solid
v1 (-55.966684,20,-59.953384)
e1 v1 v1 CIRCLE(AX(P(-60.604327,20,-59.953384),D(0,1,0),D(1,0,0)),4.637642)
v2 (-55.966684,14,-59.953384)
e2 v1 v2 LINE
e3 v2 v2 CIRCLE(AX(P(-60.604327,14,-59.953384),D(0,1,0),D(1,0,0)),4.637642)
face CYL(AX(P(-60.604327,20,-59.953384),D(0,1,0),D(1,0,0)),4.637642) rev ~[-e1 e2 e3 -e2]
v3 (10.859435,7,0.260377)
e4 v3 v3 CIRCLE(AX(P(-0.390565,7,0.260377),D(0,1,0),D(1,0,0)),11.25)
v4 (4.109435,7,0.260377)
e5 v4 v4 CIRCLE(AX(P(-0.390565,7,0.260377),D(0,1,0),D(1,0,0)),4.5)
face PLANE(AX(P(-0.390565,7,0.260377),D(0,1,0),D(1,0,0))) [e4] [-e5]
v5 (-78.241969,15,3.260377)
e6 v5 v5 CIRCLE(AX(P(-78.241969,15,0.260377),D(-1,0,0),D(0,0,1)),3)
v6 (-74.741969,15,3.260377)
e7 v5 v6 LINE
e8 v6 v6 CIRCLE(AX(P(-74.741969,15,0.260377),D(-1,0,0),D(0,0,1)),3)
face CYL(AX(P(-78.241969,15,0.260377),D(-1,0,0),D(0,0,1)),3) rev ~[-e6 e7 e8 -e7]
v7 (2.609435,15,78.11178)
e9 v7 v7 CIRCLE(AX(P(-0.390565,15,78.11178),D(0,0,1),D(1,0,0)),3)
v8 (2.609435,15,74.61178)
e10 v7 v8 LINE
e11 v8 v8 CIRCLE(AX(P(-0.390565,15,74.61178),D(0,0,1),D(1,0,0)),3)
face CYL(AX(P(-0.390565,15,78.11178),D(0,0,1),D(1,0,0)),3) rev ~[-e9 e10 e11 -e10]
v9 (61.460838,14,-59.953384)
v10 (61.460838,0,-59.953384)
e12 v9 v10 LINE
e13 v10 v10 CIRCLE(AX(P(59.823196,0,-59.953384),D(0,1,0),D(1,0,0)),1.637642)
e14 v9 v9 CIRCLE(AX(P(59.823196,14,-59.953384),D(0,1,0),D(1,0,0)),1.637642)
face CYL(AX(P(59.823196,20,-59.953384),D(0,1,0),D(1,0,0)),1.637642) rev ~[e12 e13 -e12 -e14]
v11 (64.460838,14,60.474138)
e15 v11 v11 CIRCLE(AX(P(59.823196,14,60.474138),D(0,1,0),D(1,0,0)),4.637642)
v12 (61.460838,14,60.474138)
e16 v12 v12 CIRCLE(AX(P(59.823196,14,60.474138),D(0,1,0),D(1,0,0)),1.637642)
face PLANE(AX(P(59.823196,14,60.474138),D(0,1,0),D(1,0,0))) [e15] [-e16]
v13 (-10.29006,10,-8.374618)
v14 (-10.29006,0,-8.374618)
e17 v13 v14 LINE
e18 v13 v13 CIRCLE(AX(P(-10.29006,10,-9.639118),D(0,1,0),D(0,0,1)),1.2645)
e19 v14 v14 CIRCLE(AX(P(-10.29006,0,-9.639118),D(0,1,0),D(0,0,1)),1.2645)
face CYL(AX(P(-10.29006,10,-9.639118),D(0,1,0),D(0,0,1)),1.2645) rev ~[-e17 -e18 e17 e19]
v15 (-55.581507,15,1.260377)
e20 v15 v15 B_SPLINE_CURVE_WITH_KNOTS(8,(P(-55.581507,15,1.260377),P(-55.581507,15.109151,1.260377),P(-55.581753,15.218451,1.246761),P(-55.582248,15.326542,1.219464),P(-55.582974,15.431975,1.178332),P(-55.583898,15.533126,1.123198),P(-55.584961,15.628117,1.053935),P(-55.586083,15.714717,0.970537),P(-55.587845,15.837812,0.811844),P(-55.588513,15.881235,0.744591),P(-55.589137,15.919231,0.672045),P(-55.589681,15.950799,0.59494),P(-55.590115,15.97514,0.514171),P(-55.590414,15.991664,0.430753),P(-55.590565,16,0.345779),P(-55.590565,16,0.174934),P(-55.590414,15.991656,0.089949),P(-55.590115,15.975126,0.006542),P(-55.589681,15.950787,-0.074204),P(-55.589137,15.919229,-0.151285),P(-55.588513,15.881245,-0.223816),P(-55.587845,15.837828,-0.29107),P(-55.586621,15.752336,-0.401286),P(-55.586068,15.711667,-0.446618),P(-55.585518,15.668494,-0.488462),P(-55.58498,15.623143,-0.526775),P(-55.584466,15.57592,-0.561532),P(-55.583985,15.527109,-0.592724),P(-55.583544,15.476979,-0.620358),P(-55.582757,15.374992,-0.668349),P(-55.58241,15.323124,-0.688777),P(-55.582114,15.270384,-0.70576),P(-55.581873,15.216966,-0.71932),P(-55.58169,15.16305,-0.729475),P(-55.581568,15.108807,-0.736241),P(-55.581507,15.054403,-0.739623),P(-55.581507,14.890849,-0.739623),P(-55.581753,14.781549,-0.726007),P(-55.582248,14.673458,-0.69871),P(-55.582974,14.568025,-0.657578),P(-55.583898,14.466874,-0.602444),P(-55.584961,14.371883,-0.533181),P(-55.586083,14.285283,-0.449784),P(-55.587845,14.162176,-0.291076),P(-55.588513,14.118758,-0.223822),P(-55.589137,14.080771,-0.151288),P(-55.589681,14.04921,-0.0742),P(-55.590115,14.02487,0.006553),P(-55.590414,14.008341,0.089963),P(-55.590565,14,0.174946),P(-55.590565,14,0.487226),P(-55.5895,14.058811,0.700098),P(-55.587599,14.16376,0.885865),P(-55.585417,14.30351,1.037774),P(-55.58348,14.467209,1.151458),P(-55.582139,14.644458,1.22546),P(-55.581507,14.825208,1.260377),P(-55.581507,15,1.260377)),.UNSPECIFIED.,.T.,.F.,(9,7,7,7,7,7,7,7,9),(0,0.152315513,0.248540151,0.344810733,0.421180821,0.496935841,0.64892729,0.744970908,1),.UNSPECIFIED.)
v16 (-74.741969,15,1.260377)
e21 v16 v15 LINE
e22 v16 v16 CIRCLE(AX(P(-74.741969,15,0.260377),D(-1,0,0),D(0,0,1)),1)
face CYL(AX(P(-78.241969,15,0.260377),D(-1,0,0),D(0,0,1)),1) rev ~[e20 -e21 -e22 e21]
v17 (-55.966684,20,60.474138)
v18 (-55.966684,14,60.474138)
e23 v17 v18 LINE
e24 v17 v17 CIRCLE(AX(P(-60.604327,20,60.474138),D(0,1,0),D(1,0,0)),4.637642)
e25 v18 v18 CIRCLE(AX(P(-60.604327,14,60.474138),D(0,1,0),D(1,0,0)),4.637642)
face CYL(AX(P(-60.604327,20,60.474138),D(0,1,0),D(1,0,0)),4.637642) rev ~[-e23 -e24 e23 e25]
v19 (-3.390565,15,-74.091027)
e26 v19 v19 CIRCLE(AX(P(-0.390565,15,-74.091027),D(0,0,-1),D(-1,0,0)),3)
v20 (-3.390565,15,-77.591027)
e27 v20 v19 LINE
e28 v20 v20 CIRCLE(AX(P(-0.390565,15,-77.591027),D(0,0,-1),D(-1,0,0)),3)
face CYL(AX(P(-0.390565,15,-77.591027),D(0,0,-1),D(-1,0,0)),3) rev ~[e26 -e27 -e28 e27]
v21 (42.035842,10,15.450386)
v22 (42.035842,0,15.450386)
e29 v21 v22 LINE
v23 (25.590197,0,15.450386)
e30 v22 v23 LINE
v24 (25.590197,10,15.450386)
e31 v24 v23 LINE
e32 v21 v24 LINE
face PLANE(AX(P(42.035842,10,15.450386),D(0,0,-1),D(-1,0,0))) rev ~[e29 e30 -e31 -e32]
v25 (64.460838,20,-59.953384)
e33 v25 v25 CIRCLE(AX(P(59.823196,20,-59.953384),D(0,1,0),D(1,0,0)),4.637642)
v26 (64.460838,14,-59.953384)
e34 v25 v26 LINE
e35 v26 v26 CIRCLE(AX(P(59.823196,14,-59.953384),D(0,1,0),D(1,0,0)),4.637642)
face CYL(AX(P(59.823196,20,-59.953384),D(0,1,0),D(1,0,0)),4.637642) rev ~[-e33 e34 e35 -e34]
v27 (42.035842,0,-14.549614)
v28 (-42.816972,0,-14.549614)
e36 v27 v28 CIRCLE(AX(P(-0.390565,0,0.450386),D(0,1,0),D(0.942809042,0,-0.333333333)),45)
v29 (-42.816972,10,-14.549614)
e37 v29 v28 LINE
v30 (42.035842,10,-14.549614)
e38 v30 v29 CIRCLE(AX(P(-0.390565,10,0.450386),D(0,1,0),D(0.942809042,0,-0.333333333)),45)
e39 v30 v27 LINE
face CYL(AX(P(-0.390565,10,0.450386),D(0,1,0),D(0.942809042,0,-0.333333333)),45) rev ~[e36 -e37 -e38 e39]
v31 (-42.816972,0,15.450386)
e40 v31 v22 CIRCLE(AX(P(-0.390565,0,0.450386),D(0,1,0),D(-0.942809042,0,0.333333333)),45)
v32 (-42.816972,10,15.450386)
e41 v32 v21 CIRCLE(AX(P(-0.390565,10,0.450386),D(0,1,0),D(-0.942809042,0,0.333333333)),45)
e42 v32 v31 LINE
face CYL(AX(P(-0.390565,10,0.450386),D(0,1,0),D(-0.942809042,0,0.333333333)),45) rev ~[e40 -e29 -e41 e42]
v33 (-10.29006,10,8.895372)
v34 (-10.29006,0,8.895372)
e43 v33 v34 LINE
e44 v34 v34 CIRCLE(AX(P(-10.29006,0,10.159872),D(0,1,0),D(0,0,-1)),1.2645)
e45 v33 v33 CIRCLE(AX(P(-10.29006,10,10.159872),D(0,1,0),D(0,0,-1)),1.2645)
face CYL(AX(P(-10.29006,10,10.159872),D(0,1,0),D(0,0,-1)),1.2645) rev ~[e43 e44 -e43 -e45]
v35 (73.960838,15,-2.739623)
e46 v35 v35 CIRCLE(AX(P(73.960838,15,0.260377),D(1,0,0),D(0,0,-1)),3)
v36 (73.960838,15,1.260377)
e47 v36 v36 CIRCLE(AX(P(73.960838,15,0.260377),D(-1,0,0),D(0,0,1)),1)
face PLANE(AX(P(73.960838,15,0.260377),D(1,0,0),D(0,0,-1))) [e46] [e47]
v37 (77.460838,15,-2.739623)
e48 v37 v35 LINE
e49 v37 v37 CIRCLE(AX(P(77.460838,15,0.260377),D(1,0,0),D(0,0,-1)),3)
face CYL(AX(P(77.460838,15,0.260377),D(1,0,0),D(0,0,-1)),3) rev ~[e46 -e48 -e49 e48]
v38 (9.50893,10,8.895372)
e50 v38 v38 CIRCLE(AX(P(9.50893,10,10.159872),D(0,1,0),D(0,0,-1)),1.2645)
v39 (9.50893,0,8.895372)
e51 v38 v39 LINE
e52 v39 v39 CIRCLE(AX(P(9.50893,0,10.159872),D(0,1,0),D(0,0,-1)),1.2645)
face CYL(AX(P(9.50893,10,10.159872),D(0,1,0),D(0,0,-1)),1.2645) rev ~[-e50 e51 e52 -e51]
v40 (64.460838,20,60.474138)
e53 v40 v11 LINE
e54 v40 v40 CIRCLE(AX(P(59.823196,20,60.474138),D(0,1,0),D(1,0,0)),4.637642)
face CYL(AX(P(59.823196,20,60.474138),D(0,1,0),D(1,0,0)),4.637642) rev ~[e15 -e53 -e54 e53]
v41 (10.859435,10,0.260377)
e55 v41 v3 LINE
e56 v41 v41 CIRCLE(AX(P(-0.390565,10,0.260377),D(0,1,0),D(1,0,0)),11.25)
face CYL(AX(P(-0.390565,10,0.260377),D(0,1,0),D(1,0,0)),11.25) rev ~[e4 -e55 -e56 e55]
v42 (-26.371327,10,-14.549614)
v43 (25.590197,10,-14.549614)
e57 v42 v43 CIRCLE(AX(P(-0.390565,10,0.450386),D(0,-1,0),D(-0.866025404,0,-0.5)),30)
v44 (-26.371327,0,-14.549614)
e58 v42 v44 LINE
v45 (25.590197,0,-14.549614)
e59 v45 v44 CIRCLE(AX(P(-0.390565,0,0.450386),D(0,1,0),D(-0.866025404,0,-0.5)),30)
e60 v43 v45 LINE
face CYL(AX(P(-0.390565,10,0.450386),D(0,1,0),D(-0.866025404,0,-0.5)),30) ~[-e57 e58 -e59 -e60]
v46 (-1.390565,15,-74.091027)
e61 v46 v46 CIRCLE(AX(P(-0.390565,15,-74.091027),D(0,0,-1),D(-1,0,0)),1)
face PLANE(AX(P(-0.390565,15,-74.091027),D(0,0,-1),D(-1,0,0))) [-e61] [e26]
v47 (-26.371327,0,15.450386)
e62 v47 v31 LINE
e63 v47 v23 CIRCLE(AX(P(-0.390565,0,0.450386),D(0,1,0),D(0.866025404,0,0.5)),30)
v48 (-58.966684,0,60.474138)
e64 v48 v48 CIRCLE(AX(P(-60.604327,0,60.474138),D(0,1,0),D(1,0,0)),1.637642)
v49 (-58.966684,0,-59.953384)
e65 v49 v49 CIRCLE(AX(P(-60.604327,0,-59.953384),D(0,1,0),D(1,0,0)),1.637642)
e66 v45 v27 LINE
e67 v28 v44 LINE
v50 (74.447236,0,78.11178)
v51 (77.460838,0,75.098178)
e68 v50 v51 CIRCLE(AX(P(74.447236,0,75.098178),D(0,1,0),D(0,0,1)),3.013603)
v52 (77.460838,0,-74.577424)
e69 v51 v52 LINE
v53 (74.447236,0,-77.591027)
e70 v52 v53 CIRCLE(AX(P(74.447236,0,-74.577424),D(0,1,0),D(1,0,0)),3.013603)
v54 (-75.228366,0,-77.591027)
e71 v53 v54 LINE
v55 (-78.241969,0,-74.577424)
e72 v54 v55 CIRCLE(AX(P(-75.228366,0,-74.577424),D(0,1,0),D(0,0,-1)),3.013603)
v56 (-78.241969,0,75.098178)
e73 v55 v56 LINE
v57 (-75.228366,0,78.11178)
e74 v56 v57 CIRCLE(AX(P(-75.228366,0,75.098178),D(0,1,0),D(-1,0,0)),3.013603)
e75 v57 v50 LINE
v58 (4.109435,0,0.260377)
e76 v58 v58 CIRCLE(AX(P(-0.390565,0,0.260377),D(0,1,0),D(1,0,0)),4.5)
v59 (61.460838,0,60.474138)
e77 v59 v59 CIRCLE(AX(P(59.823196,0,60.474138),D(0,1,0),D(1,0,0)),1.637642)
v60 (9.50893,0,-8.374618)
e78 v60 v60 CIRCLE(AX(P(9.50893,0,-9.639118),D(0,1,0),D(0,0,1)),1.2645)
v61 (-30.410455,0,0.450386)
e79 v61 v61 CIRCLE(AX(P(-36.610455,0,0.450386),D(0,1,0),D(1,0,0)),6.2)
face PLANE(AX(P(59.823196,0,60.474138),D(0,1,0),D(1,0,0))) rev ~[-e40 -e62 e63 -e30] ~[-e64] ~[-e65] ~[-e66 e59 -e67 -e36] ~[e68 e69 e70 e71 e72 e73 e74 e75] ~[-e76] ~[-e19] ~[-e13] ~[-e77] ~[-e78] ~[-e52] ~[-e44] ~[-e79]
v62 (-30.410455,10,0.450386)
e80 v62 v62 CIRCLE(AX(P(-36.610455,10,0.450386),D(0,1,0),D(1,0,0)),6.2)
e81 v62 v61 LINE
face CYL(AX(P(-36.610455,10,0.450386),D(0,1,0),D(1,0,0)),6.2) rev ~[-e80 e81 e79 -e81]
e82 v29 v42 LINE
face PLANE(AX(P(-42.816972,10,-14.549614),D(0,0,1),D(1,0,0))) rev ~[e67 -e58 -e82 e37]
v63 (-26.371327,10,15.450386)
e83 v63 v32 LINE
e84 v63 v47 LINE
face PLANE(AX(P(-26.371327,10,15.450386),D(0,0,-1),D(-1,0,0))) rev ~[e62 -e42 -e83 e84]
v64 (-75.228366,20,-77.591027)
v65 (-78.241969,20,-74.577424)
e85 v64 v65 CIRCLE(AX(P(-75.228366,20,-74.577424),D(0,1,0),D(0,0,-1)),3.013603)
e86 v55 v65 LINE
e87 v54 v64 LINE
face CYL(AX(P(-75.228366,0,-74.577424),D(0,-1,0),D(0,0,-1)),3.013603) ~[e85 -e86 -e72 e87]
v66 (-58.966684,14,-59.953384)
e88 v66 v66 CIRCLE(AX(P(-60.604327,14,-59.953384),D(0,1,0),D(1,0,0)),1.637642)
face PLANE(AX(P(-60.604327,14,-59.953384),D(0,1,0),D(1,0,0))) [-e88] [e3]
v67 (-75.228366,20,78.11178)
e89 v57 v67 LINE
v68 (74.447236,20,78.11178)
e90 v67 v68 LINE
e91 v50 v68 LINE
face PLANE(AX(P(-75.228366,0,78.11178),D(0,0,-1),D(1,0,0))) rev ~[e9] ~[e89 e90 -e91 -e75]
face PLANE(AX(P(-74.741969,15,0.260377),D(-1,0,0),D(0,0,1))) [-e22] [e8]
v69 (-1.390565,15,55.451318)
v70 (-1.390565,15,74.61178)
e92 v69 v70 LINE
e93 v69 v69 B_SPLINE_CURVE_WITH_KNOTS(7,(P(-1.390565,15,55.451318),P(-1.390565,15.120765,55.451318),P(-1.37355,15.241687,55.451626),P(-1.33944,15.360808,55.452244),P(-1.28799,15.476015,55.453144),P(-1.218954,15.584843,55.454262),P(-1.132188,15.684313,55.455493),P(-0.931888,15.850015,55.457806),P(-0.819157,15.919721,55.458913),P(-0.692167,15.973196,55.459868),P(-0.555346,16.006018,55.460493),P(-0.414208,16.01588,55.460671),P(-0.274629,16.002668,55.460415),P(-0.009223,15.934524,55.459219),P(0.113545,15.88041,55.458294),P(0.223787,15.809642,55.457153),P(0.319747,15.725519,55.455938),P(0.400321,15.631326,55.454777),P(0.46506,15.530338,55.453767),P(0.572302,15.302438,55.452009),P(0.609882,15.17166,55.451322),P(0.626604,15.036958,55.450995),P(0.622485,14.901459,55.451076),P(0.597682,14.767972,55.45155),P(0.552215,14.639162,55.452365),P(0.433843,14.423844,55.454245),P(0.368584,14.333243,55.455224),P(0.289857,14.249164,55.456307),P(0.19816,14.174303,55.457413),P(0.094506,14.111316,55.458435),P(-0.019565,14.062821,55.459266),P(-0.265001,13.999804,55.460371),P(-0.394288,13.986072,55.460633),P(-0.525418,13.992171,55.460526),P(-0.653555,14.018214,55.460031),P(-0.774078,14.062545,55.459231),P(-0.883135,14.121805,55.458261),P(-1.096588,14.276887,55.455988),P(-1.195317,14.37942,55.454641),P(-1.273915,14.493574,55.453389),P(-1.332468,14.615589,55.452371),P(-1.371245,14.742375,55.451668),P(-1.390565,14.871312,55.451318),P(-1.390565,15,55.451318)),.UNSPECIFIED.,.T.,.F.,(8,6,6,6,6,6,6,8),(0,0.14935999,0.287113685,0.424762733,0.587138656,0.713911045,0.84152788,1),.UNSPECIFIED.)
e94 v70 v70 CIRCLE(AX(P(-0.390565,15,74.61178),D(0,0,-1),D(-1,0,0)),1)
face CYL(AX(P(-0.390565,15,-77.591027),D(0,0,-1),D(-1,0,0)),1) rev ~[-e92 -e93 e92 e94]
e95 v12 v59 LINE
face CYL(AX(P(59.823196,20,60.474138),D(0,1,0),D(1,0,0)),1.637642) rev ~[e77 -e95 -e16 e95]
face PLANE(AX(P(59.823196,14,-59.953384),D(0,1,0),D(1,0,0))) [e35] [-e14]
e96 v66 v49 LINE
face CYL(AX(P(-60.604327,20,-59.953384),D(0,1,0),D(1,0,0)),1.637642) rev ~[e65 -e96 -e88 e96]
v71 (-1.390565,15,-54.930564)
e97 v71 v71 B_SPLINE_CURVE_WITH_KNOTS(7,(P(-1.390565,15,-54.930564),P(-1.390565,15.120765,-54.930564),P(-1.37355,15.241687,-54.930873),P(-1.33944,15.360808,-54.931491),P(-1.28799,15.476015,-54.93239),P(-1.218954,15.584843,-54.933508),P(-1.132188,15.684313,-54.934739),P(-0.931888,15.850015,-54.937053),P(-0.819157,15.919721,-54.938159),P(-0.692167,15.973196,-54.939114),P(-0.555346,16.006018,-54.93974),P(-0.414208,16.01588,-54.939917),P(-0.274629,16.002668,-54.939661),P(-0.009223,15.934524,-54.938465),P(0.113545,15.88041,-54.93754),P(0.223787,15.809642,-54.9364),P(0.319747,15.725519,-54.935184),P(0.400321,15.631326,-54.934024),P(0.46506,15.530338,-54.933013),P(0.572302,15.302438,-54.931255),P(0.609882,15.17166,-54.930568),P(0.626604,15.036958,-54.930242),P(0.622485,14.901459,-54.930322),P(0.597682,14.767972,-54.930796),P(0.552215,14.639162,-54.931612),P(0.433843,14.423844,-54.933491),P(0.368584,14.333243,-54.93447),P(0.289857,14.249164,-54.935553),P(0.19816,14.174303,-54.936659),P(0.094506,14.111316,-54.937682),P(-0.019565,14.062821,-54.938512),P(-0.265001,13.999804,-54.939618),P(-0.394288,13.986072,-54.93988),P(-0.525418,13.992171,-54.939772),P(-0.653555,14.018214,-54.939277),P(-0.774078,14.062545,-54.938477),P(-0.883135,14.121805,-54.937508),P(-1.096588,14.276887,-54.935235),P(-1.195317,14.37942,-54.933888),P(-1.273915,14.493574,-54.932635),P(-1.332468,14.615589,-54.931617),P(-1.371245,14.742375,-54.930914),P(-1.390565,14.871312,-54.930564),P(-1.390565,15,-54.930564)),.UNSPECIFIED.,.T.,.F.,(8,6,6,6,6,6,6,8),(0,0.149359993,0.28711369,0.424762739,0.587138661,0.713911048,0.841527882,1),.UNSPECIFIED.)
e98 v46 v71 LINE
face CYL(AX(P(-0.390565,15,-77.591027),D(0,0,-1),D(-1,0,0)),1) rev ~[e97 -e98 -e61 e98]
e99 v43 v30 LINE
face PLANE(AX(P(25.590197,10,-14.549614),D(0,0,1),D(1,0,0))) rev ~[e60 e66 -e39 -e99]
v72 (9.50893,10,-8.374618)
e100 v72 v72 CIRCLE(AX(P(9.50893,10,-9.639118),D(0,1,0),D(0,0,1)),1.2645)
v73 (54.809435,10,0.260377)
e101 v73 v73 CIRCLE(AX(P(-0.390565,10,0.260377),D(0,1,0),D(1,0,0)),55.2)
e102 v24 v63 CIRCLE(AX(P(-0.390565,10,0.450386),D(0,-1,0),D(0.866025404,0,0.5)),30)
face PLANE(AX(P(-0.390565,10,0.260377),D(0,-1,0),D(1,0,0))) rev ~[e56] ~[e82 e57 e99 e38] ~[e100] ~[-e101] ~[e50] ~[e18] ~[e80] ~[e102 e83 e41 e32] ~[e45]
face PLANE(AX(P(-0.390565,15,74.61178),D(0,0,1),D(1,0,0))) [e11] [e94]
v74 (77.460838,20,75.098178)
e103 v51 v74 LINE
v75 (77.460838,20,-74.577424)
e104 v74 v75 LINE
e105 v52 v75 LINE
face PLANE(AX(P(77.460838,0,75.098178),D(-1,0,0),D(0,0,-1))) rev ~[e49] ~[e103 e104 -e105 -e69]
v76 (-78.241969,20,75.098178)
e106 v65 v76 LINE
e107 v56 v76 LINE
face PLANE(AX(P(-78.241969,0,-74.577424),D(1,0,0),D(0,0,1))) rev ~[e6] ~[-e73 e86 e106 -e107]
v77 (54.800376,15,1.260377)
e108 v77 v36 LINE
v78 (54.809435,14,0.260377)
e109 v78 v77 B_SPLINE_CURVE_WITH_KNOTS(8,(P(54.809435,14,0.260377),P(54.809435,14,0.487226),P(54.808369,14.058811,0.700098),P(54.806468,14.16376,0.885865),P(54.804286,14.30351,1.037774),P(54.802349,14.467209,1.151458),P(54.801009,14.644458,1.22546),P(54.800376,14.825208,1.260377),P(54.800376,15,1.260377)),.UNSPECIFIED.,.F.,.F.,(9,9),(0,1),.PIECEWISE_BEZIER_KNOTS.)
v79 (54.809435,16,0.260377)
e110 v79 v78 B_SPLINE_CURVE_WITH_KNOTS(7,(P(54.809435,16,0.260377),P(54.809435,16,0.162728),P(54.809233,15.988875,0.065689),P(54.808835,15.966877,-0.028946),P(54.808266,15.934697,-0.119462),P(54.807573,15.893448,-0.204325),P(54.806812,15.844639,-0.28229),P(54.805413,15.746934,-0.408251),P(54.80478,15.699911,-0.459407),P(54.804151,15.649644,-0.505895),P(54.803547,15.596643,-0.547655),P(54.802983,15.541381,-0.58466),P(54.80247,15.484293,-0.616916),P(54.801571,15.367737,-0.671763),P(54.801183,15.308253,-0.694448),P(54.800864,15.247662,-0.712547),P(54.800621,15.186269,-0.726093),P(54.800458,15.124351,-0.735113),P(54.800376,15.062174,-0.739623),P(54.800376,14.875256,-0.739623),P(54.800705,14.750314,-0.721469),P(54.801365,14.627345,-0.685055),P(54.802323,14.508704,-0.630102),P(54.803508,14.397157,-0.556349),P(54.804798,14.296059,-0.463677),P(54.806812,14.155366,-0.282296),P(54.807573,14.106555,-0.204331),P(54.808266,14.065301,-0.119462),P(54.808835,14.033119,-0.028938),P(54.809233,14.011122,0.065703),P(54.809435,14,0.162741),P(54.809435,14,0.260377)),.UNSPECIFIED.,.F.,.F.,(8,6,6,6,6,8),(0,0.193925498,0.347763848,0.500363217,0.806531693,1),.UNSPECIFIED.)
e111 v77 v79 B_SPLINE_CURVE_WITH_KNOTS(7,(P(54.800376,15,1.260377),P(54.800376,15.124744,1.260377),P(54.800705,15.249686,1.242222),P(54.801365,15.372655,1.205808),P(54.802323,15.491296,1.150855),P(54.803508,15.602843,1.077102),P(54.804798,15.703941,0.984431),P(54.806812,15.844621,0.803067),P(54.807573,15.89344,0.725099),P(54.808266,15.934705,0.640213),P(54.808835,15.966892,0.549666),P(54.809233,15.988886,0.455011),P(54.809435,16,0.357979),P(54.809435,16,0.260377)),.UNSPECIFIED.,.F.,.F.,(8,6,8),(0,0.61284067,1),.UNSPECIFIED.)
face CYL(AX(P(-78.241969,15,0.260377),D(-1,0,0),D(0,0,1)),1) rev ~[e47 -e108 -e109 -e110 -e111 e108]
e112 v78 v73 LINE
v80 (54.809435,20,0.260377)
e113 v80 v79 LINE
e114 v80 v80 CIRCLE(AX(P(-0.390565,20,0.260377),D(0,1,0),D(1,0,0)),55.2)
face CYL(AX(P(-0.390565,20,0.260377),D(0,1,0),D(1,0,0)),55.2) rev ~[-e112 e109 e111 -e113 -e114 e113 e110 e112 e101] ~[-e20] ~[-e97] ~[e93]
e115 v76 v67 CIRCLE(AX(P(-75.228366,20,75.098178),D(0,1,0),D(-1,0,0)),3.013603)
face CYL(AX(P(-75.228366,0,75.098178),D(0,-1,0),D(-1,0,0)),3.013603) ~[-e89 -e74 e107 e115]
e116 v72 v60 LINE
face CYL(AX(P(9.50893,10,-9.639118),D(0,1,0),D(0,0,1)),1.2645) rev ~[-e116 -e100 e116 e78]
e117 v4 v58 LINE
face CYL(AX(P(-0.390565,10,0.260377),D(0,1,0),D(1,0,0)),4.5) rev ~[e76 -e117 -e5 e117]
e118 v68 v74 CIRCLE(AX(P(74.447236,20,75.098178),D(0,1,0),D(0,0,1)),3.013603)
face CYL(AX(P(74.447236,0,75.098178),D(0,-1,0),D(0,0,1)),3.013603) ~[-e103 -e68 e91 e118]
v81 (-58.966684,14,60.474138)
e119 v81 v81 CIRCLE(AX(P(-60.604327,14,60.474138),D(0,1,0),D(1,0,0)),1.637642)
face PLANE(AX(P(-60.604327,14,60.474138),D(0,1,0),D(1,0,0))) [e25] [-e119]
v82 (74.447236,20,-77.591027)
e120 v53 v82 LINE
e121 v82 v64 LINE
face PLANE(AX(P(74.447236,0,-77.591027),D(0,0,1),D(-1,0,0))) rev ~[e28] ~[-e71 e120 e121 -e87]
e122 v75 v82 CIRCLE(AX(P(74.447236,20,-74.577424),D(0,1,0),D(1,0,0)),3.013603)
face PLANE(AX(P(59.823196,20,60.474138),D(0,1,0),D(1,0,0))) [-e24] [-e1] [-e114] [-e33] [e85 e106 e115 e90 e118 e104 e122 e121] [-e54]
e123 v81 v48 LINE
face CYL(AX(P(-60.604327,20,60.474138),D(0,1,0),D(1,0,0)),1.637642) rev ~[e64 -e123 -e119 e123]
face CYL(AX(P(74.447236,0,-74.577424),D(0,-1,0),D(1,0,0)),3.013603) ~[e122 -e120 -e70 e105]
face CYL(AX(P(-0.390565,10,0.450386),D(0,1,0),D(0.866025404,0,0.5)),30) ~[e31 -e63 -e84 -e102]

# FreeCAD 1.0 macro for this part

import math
import FreeCAD as App
import Part
import Sketcher

V = App.Vector

doc = App.newDocument("Part")
body = doc.addObject("PartDesign::Body", "Body")

# Sketch on XZ plane
sketch1 = body.newObject("Sketcher::SketchObject", "Sketch")
sketch1.AttachmentSupport = (doc.getObject("XZ_Plane"), [""])
sketch1.MapMode = "FlatFace"
sketch1.addGeometry([
    Part.LineSegment(V(77.5, 75.1, 0), V(77.5, -74.6, 0)),  # 0
    Part.ArcOfCircle(Part.Circle(V(74.4, -74.6, 0), V(0, 0, 1), 3), math.radians(-90), math.radians(0)),  # 1
    Part.LineSegment(V(74.4, -77.6, 0), V(-75.2, -77.6, 0)),  # 2
    Part.ArcOfCircle(Part.Circle(V(-75.2, -74.6, 0), V(0, 0, 1), 3), math.radians(180), math.radians(270)),  # 3
    Part.LineSegment(V(-78.2, -74.6, 0), V(-78.2, 75.1, 0)),  # 4
    Part.ArcOfCircle(Part.Circle(V(-75.2, 75.1, 0), V(0, 0, 1), 3), math.radians(90), math.radians(180)),  # 5
    Part.LineSegment(V(-75.2, 78.1, 0), V(74.4, 78.1, 0)),  # 6
    Part.ArcOfCircle(Part.Circle(V(74.4, 75.1, 0), V(0, 0, 1), 3), math.radians(0), math.radians(90)),  # 7
    Part.Circle(V(-60.6, 60.5, 0), V(0, 0, 1), 2.6),  # 8
    Part.Circle(V(59.8, 60.5, 0), V(0, 0, 1), 2.6),  # 9
    Part.Circle(V(-60.6, -60, 0), V(0, 0, 1), 2.6),  # 10
    Part.Circle(V(-0.4, 0.3, 0), V(0, 0, 1), 73),  # 11
    Part.Circle(V(59.8, -60, 0), V(0, 0, 1), 2.6),  # 12
], False)
sketch1.addConstraint([
    Sketcher.Constraint("Tangent", 0, 2, 1, 2),
    Sketcher.Constraint("Tangent", 1, 1, 2, 1),
    Sketcher.Constraint("Tangent", 2, 2, 3, 2),
    Sketcher.Constraint("Tangent", 3, 1, 4, 1),
    Sketcher.Constraint("Tangent", 4, 2, 5, 2),
    Sketcher.Constraint("Tangent", 5, 1, 6, 1),
    Sketcher.Constraint("Tangent", 6, 2, 7, 2),
    Sketcher.Constraint("Tangent", 7, 1, 0, 1),
    Sketcher.Constraint("Vertical", 0),
    Sketcher.Constraint("Horizontal", 2),
    Sketcher.Constraint("Vertical", 4),
    Sketcher.Constraint("Horizontal", 6),
    Sketcher.Constraint("Equal", 1, 3),
    Sketcher.Constraint("Equal", 3, 5),
    Sketcher.Constraint("Equal", 5, 7),
    Sketcher.Constraint("Equal", 8, 9),
    Sketcher.Constraint("Equal", 9, 10),
    Sketcher.Constraint("Equal", 10, 12),
    Sketcher.Constraint("Horizontal", 8, 3, 9, 3),
    Sketcher.Constraint("Horizontal", 10, 3, 12, 3),
    Sketcher.Constraint("Vertical", 8, 3, 10, 3),
    Sketcher.Constraint("Vertical", 9, 3, 12, 3),
    Sketcher.Constraint("Equal", 6, 0),
    Sketcher.Constraint("Diameter", 11, 146.0),
    Sketcher.Constraint("Diameter", 8, 5.275285),
    Sketcher.Constraint("DistanceX", 2, 2, 2, 1, 149.675602),
    Sketcher.Constraint("Radius", 1, 3.013603),
    Sketcher.Constraint("DistanceX", 11, 3, 1, 3, 74.837801),
    Sketcher.Constraint("DistanceY", 1, 3, 11, 3, 74.837801),
    Sketcher.Constraint("DistanceY", -1, 1, 8, 3, 60.474138),
    Sketcher.Constraint("DistanceX", -1, 1, 0, 2, 77.460838),
    Sketcher.Constraint("DistanceY", -1, 1, 5, 1, 78.11178),
    Sketcher.Constraint("DistanceX", 5, 3, 8, 3, 14.62404),
    Sketcher.Constraint("DistanceX", 9, 3, 7, 3, 14.62404),
    Sketcher.Constraint("DistanceY", 3, 3, 10, 3, 14.62404),
])
pad1 = body.newObject("PartDesign::Pad", "Pad")
pad1.Profile = sketch1
pad1.Length = 20
pad1.Reversed = True

# Sketch on XZ plane
sketch2 = body.newObject("Sketcher::SketchObject", "Sketch001")
sketch2.AttachmentSupport = (doc.getObject("XZ_Plane"), [""])
sketch2.MapMode = "FlatFace"
sketch2.AttachmentOffset = App.Placement(V(0, 0, -20), App.Rotation())
sketch2.addGeometry([
    Part.Circle(V(0, 0, 0), V(0, 0, 1), 73),
    Part.Circle(V(0, 0, 0), V(0, 0, 1), 52),
], False)
sketch2.addConstraint([
    Sketcher.Constraint("Coincident", 1, 3, 0, 3),
    Sketcher.Constraint("Diameter", 0, 146.0),
    Sketcher.Constraint("Diameter", 1, 104.5),
    Sketcher.Constraint("DistanceX", 0, 3, -1, 1, 0.390565),
    Sketcher.Constraint("DistanceY", -1, 1, 0, 3, 0.260377),
])
pad2 = body.newObject("PartDesign::Pad", "Pad001")
pad2.Profile = sketch2
pad2.Length = 10

# Sketch on XZ plane
sketch3 = body.newObject("Sketcher::SketchObject", "Sketch002")
sketch3.AttachmentSupport = (doc.getObject("XZ_Plane"), [""])
sketch3.MapMode = "FlatFace"
sketch3.AttachmentOffset = App.Placement(V(0, 0, -10), App.Rotation())
sketch3.addGeometry(Part.Circle(V(0, 0, 0), V(0, 0, 1), 73), False)
sketch3.addConstraint([
    Sketcher.Constraint("Diameter", 0, 146.0),
    Sketcher.Constraint("DistanceX", 0, 3, -1, 1, 0.390565),
    Sketcher.Constraint("DistanceY", -1, 1, 0, 3, 0.260377),
])
pad3 = body.newObject("PartDesign::Pad", "Pad002")
pad3.Profile = sketch3
pad3.Length = 10

# Sketch on XZ plane
sketch4 = body.newObject("Sketcher::SketchObject", "Sketch003")
sketch4.AttachmentSupport = (doc.getObject("XZ_Plane"), [""])
sketch4.MapMode = "FlatFace"
sketch4.AttachmentOffset = App.Placement(V(0, 0, -10), App.Rotation())
sketch4.addGeometry(Part.Circle(V(0, 0, 0), V(0, 0, 1), 11), False)
sketch4.addConstraint([
    Sketcher.Constraint("Diameter", 0, 22.5),
    Sketcher.Constraint("DistanceX", 0, 3, -1, 1, 0.390565),
    Sketcher.Constraint("DistanceY", -1, 1, 0, 3, 0.260377),
])
pocket1 = body.newObject("PartDesign::Pocket", "Pocket")
pocket1.Profile = sketch4
pocket1.Length = 3
pocket1.Reversed = True

# Sketch on XZ plane
sketch5 = body.newObject("Sketcher::SketchObject", "Sketch004")
sketch5.AttachmentSupport = (doc.getObject("XZ_Plane"), [""])
sketch5.MapMode = "FlatFace"
sketch5.AttachmentOffset = App.Placement(V(0, 0, -10), App.Rotation())
sketch5.addGeometry([
    Part.Circle(V(-0.4, 0.3, 0), V(0, 0, 1), 4.5),  # 0
    Part.Circle(V(9.5, 10.2, 0), V(0, 0, 1), 1.3),  # 1
    Part.Circle(V(-10.3, 10.2, 0), V(0, 0, 1), 1.3),  # 2
    Part.Circle(V(-10.3, -9.6, 0), V(0, 0, 1), 1.3),  # 3
    Part.Circle(V(9.5, -9.6, 0), V(0, 0, 1), 1.3),  # 4
], False)
sketch5.addConstraint([
    Sketcher.Constraint("Equal", 1, 2),
    Sketcher.Constraint("Equal", 2, 3),
    Sketcher.Constraint("Equal", 3, 4),
    Sketcher.Constraint("Horizontal", 1, 3, 2, 3),
    Sketcher.Constraint("Horizontal", 3, 3, 4, 3),
    Sketcher.Constraint("Vertical", 2, 3, 3, 3),
    Sketcher.Constraint("Vertical", 1, 3, 4, 3),
    Sketcher.Constraint("Diameter", 0, 9.0),
    Sketcher.Constraint("Diameter", 1, 2.529),
    Sketcher.Constraint("DistanceX", -1, 1, 1, 3, 9.50893),
    Sketcher.Constraint("DistanceY", -1, 1, 1, 3, 10.159872),
    Sketcher.Constraint("DistanceX", 2, 3, -1, 1, 10.29006),
    Sketcher.Constraint("DistanceY", 3, 3, -1, 1, 9.639118),
    Sketcher.Constraint("DistanceX", 0, 3, -1, 1, 0.390565),
    Sketcher.Constraint("DistanceY", -1, 1, 0, 3, 0.260377),
])
pocket2 = body.newObject("PartDesign::Pocket", "Pocket001")
pocket2.Profile = sketch5
pocket2.Length = 89
pocket2.Reversed = True

# Sketch on XZ plane
sketch6 = body.newObject("Sketcher::SketchObject", "Sketch005")
sketch6.AttachmentSupport = (doc.getObject("XZ_Plane"), [""])
sketch6.MapMode = "FlatFace"
sketch6.AttachmentOffset = App.Placement(V(0, 0, -20), App.Rotation())
sketch6.addGeometry([
    Part.Circle(V(0, 0, 0), V(0, 0, 1), 55),
    Part.Circle(V(0, 0, 0), V(0, 0, 1), 52),
], False)
sketch6.addConstraint([
    Sketcher.Constraint("Coincident", 1, 3, 0, 3),
    Sketcher.Constraint("Diameter", 0, 110.4),
    Sketcher.Constraint("Diameter", 1, 104.5),
    Sketcher.Constraint("DistanceX", 0, 3, -1, 1, 0.390565),
    Sketcher.Constraint("DistanceY", -1, 1, 0, 3, 0.260377),
])
pocket3 = body.newObject("PartDesign::Pocket", "Pocket002")
pocket3.Profile = sketch6
pocket3.Length = 10
pocket3.Reversed = True

# Sketch on XY plane
sketch7 = body.newObject("Sketcher::SketchObject", "Sketch006")
sketch7.AttachmentSupport = (doc.getObject("XY_Plane"), [""])
sketch7.MapMode = "FlatFace"
sketch7.AttachmentOffset = App.Placement(V(0, 0, -77.591027), App.Rotation())
sketch7.addGeometry(Part.Circle(V(-0.4, 15, 0), V(0, 0, 1), 1), False)
sketch7.addConstraint([
    Sketcher.Constraint("Diameter", 0, 2.0),
    Sketcher.Constraint("DistanceY", -1, 1, 0, 3, 15.0),
    Sketcher.Constraint("DistanceX", 0, 3, -1, 1, 0.390565),
])
pocket4 = body.newObject("PartDesign::Pocket", "Pocket003")
pocket4.Profile = sketch7
pocket4.Length = 224
pocket4.Reversed = True

# Sketch on YZ plane
sketch8 = body.newObject("Sketcher::SketchObject", "Sketch007")
sketch8.AttachmentSupport = (doc.getObject("YZ_Plane"), [""])
sketch8.MapMode = "FlatFace"
sketch8.AttachmentOffset = App.Placement(V(0, 0, -78.241969), App.Rotation())
sketch8.addGeometry(Part.Circle(V(15, 0.3, 0), V(0, 0, 1), 1), False)
sketch8.addConstraint([
    Sketcher.Constraint("Diameter", 0, 2.0),
    Sketcher.Constraint("DistanceX", -1, 1, 0, 3, 15.0),
    Sketcher.Constraint("DistanceY", -1, 1, 0, 3, 0.260377),
])
pocket5 = body.newObject("PartDesign::Pocket", "Pocket004")
pocket5.Profile = sketch8
pocket5.Length = 224
pocket5.Reversed = True

# Sketch on XZ plane
sketch9 = body.newObject("Sketcher::SketchObject", "Sketch008")
sketch9.AttachmentSupport = (doc.getObject("XZ_Plane"), [""])
sketch9.MapMode = "FlatFace"
sketch9.AttachmentOffset = App.Placement(V(0, 0, -20), App.Rotation())
sketch9.addGeometry([
    Part.Circle(V(59.8, 60.5, 0), V(0, 0, 1), 2.6),  # 0
    Part.Circle(V(59.8, 60.5, 0), V(0, 0, 1), 1.6),  # 1
    Part.Circle(V(-60.6, 60.5, 0), V(0, 0, 1), 2.6),  # 2
    Part.Circle(V(-60.6, 60.5, 0), V(0, 0, 1), 1.6),  # 3
    Part.Circle(V(-60.6, -60, 0), V(0, 0, 1), 2.6),  # 4
    Part.Circle(V(-60.6, -60, 0), V(0, 0, 1), 1.6),  # 5
    Part.Circle(V(59.8, -60, 0), V(0, 0, 1), 2.6),  # 6
    Part.Circle(V(59.8, -60, 0), V(0, 0, 1), 1.6),  # 7
], False)
sketch9.addConstraint([
    Sketcher.Constraint("Coincident", 1, 3, 0, 3),
    Sketcher.Constraint("Coincident", 3, 3, 2, 3),
    Sketcher.Constraint("Coincident", 5, 3, 4, 3),
    Sketcher.Constraint("Coincident", 7, 3, 6, 3),
    Sketcher.Constraint("Equal", 0, 2),
    Sketcher.Constraint("Equal", 1, 3),
    Sketcher.Constraint("Equal", 2, 4),
    Sketcher.Constraint("Equal", 3, 5),
    Sketcher.Constraint("Equal", 4, 6),
    Sketcher.Constraint("Equal", 5, 7),
    Sketcher.Constraint("Horizontal", 1, 3, 2, 3),
    Sketcher.Constraint("Horizontal", 5, 3, 6, 3),
    Sketcher.Constraint("Vertical", 3, 3, 4, 3),
    Sketcher.Constraint("Vertical", 1, 3, 6, 3),
    Sketcher.Constraint("Diameter", 0, 5.275285),
    Sketcher.Constraint("Diameter", 1, 3.275285),
    Sketcher.Constraint("DistanceY", -1, 1, 0, 3, 60.474138),
    Sketcher.Constraint("DistanceX", -1, 1, 0, 3, 59.823196),
    Sketcher.Constraint("DistanceX", 2, 3, -1, 1, 60.604327),
    Sketcher.Constraint("DistanceY", 4, 3, -1, 1, 59.953384),
])
pad4 = body.newObject("PartDesign::Pad", "Pad003")
pad4.Profile = sketch9
pad4.Length = 20

# Sketch on XZ plane
sketch10 = body.newObject("Sketcher::SketchObject", "Sketch009")
sketch10.AttachmentSupport = (doc.getObject("XZ_Plane"), [""])
sketch10.MapMode = "FlatFace"
sketch10.AttachmentOffset = App.Placement(V(0, 0, -20), App.Rotation())
sketch10.addGeometry([
    Part.Circle(V(59.8, 60.5, 0), V(0, 0, 1), 4.6),  # 0
    Part.Circle(V(59.8, 60.5, 0), V(0, 0, 1), 1.6),  # 1
    Part.Circle(V(-60.6, 60.5, 0), V(0, 0, 1), 4.6),  # 2
    Part.Circle(V(-60.6, 60.5, 0), V(0, 0, 1), 1.6),  # 3
    Part.Circle(V(-60.6, -60, 0), V(0, 0, 1), 4.6),  # 4
    Part.Circle(V(-60.6, -60, 0), V(0, 0, 1), 1.6),  # 5
    Part.Circle(V(59.8, -60, 0), V(0, 0, 1), 4.6),  # 6
    Part.Circle(V(59.8, -60, 0), V(0, 0, 1), 1.6),  # 7
], False)
sketch10.addConstraint([
    Sketcher.Constraint("Coincident", 1, 3, 0, 3),
    Sketcher.Constraint("Coincident", 3, 3, 2, 3),
    Sketcher.Constraint("Coincident", 5, 3, 4, 3),
    Sketcher.Constraint("Coincident", 7, 3, 6, 3),
    Sketcher.Constraint("Equal", 0, 2),
    Sketcher.Constraint("Equal", 1, 3),
    Sketcher.Constraint("Equal", 2, 4),
    Sketcher.Constraint("Equal", 3, 5),
    Sketcher.Constraint("Equal", 4, 6),
    Sketcher.Constraint("Equal", 5, 7),
    Sketcher.Constraint("Horizontal", 1, 3, 2, 3),
    Sketcher.Constraint("Horizontal", 5, 3, 6, 3),
    Sketcher.Constraint("Vertical", 3, 3, 4, 3),
    Sketcher.Constraint("Vertical", 1, 3, 6, 3),
    Sketcher.Constraint("Diameter", 0, 9.275285),
    Sketcher.Constraint("Diameter", 1, 3.275285),
    Sketcher.Constraint("DistanceY", -1, 1, 0, 3, 60.474138),
    Sketcher.Constraint("DistanceX", -1, 1, 0, 3, 59.823196),
    Sketcher.Constraint("DistanceX", 2, 3, -1, 1, 60.604327),
    Sketcher.Constraint("DistanceY", 4, 3, -1, 1, 59.953384),
])
pocket6 = body.newObject("PartDesign::Pocket", "Pocket005")
pocket6.Profile = sketch10
pocket6.Length = 6
pocket6.Reversed = True

# Sketch on XZ plane
sketch11 = body.newObject("Sketcher::SketchObject", "Sketch010")
sketch11.AttachmentSupport = (doc.getObject("XZ_Plane"), [""])
sketch11.MapMode = "FlatFace"
sketch11.AttachmentOffset = App.Placement(V(0, 0, -10), App.Rotation())
sketch11.addGeometry([
    Part.ArcOfCircle(Part.Circle(V(0, 0, 0), V(0, 0, 1), 45), math.radians(-161), math.radians(-19)),  # 0
    Part.LineSegment(V(-43, -15, 0), V(-26, -15, 0)),  # 1
    Part.ArcOfCircle(Part.Circle(V(0, 0, 0), V(0, 0, 1), 30), math.radians(-150), math.radians(-30)),  # 2
    Part.LineSegment(V(26, -15, 0), V(42, -15, 0)),  # 3
    Part.LineSegment(V(-26, 15, 0), V(-43, 15, 0)),  # 4
    Part.ArcOfCircle(Part.Circle(V(0, 0, 0), V(0, 0, 1), 45), math.radians(19), math.radians(161)),  # 5
    Part.LineSegment(V(42, 15, 0), V(26, 15, 0)),  # 6
    Part.ArcOfCircle(Part.Circle(V(0, 0, 0), V(0, 0, 1), 30), math.radians(30), math.radians(150)),  # 7
], False)
sketch11.addConstraint([
    Sketcher.Constraint("Coincident", 0, 1, 1, 1),
    Sketcher.Constraint("Coincident", 1, 2, 2, 1),
    Sketcher.Constraint("Coincident", 2, 2, 3, 1),
    Sketcher.Constraint("Coincident", 3, 2, 0, 2),
    Sketcher.Constraint("Coincident", 4, 2, 5, 2),
    Sketcher.Constraint("Coincident", 5, 1, 6, 1),
    Sketcher.Constraint("Coincident", 6, 2, 7, 1),
    Sketcher.Constraint("Coincident", 7, 2, 4, 1),
    Sketcher.Constraint("Horizontal", 1),
    Sketcher.Constraint("Horizontal", 3),
    Sketcher.Constraint("Horizontal", 4),
    Sketcher.Constraint("Horizontal", 6),
    Sketcher.Constraint("Coincident", 2, 3, 0, 3),
    Sketcher.Constraint("Coincident", 5, 3, 0, 3),
    Sketcher.Constraint("Coincident", 7, 3, 0, 3),
    Sketcher.Constraint("Equal", 0, 5),
    Sketcher.Constraint("Equal", 2, 7),
    Sketcher.Constraint("Horizontal", 1, 2, 2, 2),
    Sketcher.Constraint("Horizontal", 4, 2, 5, 1),
    Sketcher.Constraint("Vertical", 0, 1, 4, 2),
    Sketcher.Constraint("Radius", 0, 45.0),
    Sketcher.Constraint("Radius", 2, 30.0),
    Sketcher.Constraint("DistanceY", 0, 1, 0, 3, 15.0),
    Sketcher.Constraint("DistanceX", -1, 1, 3, 2, 42.035842),
    Sketcher.Constraint("DistanceY", -1, 1, 0, 3, 0.450386),
])
pocket7 = body.newObject("PartDesign::Pocket", "Pocket006")
pocket7.Profile = sketch11
pocket7.Length = 15.5
pocket7.Reversed = True

# Sketch on XZ plane
sketch12 = body.newObject("Sketcher::SketchObject", "Sketch011")
sketch12.AttachmentSupport = (doc.getObject("XZ_Plane"), [""])
sketch12.MapMode = "FlatFace"
sketch12.AttachmentOffset = App.Placement(V(0, 0, -10), App.Rotation())
sketch12.addGeometry(Part.Circle(V(-37, 0, 0), V(0, 0, 1), 6), False)
sketch12.addConstraint([
    Sketcher.Constraint("Diameter", 0, 12.4),
    Sketcher.Constraint("DistanceX", 0, 3, -1, 1, 36.610455),
    Sketcher.Constraint("DistanceY", -1, 1, 0, 3, 0.450386),
])
pocket8 = body.newObject("PartDesign::Pocket", "Pocket007")
pocket8.Profile = sketch12
pocket8.Length = 144
pocket8.Reversed = True

# Sketch on YZ plane
sketch13 = body.newObject("Sketcher::SketchObject", "Sketch012")
sketch13.AttachmentSupport = (doc.getObject("YZ_Plane"), [""])
sketch13.MapMode = "FlatFace"
sketch13.AttachmentOffset = App.Placement(V(0, 0, -78.241969), App.Rotation())
sketch13.addGeometry([
    Part.Circle(V(15, 0.3, 0), V(0, 0, 1), 3),
    Part.Circle(V(15, 0.3, 0), V(0, 0, 1), 1),
], False)
sketch13.addConstraint([
    Sketcher.Constraint("Coincident", 1, 3, 0, 3),
    Sketcher.Constraint("Diameter", 0, 6.0),
    Sketcher.Constraint("Diameter", 1, 2.0),
    Sketcher.Constraint("DistanceX", -1, 1, 0, 3, 15.0),
    Sketcher.Constraint("DistanceY", -1, 1, 0, 3, 0.260377),
])
pocket9 = body.newObject("PartDesign::Pocket", "Pocket008")
pocket9.Profile = sketch13
pocket9.Length = 3.5
pocket9.Reversed = True

# Sketch on XY plane
sketch14 = body.newObject("Sketcher::SketchObject", "Sketch013")
sketch14.AttachmentSupport = (doc.getObject("XY_Plane"), [""])
sketch14.MapMode = "FlatFace"
sketch14.AttachmentOffset = App.Placement(V(0, 0, 78.11178), App.Rotation())
sketch14.addGeometry(Part.Circle(V(-0.4, 15, 0), V(0, 0, 1), 3), False)
sketch14.addConstraint([
    Sketcher.Constraint("Diameter", 0, 6.0),
    Sketcher.Constraint("DistanceY", -1, 1, 0, 3, 15.0),
    Sketcher.Constraint("DistanceX", 0, 3, -1, 1, 0.390565),
])
pocket10 = body.newObject("PartDesign::Pocket", "Pocket009")
pocket10.Profile = sketch14
pocket10.Length = 3.5

# Sketch on YZ plane
sketch15 = body.newObject("Sketcher::SketchObject", "Sketch014")
sketch15.AttachmentSupport = (doc.getObject("YZ_Plane"), [""])
sketch15.MapMode = "FlatFace"
sketch15.AttachmentOffset = App.Placement(V(0, 0, 77.460838), App.Rotation())
sketch15.addGeometry([
    Part.Circle(V(15, 0.3, 0), V(0, 0, 1), 3),
    Part.Circle(V(15, 0.3, 0), V(0, 0, 1), 1),
], False)
sketch15.addConstraint([
    Sketcher.Constraint("Coincident", 1, 3, 0, 3),
    Sketcher.Constraint("Diameter", 0, 6.0),
    Sketcher.Constraint("Diameter", 1, 2.0),
    Sketcher.Constraint("DistanceX", -1, 1, 0, 3, 15.0),
    Sketcher.Constraint("DistanceY", -1, 1, 0, 3, 0.260377),
])
pocket11 = body.newObject("PartDesign::Pocket", "Pocket010")
pocket11.Profile = sketch15
pocket11.Length = 3.5

# Sketch on XY plane
sketch16 = body.newObject("Sketcher::SketchObject", "Sketch015")
sketch16.AttachmentSupport = (doc.getObject("XY_Plane"), [""])
sketch16.MapMode = "FlatFace"
sketch16.AttachmentOffset = App.Placement(V(0, 0, -77.591027), App.Rotation())
sketch16.addGeometry(Part.Circle(V(-0.4, 15, 0), V(0, 0, 1), 3), False)
sketch16.addConstraint([
    Sketcher.Constraint("Diameter", 0, 6.0),
    Sketcher.Constraint("DistanceY", -1, 1, 0, 3, 15.0),
    Sketcher.Constraint("DistanceX", 0, 3, -1, 1, 0.390565),
])
pocket12 = body.newObject("PartDesign::Pocket", "Pocket011")
pocket12.Profile = sketch16
pocket12.Length = 3.5
pocket12.Reversed = True

doc.recompute()
